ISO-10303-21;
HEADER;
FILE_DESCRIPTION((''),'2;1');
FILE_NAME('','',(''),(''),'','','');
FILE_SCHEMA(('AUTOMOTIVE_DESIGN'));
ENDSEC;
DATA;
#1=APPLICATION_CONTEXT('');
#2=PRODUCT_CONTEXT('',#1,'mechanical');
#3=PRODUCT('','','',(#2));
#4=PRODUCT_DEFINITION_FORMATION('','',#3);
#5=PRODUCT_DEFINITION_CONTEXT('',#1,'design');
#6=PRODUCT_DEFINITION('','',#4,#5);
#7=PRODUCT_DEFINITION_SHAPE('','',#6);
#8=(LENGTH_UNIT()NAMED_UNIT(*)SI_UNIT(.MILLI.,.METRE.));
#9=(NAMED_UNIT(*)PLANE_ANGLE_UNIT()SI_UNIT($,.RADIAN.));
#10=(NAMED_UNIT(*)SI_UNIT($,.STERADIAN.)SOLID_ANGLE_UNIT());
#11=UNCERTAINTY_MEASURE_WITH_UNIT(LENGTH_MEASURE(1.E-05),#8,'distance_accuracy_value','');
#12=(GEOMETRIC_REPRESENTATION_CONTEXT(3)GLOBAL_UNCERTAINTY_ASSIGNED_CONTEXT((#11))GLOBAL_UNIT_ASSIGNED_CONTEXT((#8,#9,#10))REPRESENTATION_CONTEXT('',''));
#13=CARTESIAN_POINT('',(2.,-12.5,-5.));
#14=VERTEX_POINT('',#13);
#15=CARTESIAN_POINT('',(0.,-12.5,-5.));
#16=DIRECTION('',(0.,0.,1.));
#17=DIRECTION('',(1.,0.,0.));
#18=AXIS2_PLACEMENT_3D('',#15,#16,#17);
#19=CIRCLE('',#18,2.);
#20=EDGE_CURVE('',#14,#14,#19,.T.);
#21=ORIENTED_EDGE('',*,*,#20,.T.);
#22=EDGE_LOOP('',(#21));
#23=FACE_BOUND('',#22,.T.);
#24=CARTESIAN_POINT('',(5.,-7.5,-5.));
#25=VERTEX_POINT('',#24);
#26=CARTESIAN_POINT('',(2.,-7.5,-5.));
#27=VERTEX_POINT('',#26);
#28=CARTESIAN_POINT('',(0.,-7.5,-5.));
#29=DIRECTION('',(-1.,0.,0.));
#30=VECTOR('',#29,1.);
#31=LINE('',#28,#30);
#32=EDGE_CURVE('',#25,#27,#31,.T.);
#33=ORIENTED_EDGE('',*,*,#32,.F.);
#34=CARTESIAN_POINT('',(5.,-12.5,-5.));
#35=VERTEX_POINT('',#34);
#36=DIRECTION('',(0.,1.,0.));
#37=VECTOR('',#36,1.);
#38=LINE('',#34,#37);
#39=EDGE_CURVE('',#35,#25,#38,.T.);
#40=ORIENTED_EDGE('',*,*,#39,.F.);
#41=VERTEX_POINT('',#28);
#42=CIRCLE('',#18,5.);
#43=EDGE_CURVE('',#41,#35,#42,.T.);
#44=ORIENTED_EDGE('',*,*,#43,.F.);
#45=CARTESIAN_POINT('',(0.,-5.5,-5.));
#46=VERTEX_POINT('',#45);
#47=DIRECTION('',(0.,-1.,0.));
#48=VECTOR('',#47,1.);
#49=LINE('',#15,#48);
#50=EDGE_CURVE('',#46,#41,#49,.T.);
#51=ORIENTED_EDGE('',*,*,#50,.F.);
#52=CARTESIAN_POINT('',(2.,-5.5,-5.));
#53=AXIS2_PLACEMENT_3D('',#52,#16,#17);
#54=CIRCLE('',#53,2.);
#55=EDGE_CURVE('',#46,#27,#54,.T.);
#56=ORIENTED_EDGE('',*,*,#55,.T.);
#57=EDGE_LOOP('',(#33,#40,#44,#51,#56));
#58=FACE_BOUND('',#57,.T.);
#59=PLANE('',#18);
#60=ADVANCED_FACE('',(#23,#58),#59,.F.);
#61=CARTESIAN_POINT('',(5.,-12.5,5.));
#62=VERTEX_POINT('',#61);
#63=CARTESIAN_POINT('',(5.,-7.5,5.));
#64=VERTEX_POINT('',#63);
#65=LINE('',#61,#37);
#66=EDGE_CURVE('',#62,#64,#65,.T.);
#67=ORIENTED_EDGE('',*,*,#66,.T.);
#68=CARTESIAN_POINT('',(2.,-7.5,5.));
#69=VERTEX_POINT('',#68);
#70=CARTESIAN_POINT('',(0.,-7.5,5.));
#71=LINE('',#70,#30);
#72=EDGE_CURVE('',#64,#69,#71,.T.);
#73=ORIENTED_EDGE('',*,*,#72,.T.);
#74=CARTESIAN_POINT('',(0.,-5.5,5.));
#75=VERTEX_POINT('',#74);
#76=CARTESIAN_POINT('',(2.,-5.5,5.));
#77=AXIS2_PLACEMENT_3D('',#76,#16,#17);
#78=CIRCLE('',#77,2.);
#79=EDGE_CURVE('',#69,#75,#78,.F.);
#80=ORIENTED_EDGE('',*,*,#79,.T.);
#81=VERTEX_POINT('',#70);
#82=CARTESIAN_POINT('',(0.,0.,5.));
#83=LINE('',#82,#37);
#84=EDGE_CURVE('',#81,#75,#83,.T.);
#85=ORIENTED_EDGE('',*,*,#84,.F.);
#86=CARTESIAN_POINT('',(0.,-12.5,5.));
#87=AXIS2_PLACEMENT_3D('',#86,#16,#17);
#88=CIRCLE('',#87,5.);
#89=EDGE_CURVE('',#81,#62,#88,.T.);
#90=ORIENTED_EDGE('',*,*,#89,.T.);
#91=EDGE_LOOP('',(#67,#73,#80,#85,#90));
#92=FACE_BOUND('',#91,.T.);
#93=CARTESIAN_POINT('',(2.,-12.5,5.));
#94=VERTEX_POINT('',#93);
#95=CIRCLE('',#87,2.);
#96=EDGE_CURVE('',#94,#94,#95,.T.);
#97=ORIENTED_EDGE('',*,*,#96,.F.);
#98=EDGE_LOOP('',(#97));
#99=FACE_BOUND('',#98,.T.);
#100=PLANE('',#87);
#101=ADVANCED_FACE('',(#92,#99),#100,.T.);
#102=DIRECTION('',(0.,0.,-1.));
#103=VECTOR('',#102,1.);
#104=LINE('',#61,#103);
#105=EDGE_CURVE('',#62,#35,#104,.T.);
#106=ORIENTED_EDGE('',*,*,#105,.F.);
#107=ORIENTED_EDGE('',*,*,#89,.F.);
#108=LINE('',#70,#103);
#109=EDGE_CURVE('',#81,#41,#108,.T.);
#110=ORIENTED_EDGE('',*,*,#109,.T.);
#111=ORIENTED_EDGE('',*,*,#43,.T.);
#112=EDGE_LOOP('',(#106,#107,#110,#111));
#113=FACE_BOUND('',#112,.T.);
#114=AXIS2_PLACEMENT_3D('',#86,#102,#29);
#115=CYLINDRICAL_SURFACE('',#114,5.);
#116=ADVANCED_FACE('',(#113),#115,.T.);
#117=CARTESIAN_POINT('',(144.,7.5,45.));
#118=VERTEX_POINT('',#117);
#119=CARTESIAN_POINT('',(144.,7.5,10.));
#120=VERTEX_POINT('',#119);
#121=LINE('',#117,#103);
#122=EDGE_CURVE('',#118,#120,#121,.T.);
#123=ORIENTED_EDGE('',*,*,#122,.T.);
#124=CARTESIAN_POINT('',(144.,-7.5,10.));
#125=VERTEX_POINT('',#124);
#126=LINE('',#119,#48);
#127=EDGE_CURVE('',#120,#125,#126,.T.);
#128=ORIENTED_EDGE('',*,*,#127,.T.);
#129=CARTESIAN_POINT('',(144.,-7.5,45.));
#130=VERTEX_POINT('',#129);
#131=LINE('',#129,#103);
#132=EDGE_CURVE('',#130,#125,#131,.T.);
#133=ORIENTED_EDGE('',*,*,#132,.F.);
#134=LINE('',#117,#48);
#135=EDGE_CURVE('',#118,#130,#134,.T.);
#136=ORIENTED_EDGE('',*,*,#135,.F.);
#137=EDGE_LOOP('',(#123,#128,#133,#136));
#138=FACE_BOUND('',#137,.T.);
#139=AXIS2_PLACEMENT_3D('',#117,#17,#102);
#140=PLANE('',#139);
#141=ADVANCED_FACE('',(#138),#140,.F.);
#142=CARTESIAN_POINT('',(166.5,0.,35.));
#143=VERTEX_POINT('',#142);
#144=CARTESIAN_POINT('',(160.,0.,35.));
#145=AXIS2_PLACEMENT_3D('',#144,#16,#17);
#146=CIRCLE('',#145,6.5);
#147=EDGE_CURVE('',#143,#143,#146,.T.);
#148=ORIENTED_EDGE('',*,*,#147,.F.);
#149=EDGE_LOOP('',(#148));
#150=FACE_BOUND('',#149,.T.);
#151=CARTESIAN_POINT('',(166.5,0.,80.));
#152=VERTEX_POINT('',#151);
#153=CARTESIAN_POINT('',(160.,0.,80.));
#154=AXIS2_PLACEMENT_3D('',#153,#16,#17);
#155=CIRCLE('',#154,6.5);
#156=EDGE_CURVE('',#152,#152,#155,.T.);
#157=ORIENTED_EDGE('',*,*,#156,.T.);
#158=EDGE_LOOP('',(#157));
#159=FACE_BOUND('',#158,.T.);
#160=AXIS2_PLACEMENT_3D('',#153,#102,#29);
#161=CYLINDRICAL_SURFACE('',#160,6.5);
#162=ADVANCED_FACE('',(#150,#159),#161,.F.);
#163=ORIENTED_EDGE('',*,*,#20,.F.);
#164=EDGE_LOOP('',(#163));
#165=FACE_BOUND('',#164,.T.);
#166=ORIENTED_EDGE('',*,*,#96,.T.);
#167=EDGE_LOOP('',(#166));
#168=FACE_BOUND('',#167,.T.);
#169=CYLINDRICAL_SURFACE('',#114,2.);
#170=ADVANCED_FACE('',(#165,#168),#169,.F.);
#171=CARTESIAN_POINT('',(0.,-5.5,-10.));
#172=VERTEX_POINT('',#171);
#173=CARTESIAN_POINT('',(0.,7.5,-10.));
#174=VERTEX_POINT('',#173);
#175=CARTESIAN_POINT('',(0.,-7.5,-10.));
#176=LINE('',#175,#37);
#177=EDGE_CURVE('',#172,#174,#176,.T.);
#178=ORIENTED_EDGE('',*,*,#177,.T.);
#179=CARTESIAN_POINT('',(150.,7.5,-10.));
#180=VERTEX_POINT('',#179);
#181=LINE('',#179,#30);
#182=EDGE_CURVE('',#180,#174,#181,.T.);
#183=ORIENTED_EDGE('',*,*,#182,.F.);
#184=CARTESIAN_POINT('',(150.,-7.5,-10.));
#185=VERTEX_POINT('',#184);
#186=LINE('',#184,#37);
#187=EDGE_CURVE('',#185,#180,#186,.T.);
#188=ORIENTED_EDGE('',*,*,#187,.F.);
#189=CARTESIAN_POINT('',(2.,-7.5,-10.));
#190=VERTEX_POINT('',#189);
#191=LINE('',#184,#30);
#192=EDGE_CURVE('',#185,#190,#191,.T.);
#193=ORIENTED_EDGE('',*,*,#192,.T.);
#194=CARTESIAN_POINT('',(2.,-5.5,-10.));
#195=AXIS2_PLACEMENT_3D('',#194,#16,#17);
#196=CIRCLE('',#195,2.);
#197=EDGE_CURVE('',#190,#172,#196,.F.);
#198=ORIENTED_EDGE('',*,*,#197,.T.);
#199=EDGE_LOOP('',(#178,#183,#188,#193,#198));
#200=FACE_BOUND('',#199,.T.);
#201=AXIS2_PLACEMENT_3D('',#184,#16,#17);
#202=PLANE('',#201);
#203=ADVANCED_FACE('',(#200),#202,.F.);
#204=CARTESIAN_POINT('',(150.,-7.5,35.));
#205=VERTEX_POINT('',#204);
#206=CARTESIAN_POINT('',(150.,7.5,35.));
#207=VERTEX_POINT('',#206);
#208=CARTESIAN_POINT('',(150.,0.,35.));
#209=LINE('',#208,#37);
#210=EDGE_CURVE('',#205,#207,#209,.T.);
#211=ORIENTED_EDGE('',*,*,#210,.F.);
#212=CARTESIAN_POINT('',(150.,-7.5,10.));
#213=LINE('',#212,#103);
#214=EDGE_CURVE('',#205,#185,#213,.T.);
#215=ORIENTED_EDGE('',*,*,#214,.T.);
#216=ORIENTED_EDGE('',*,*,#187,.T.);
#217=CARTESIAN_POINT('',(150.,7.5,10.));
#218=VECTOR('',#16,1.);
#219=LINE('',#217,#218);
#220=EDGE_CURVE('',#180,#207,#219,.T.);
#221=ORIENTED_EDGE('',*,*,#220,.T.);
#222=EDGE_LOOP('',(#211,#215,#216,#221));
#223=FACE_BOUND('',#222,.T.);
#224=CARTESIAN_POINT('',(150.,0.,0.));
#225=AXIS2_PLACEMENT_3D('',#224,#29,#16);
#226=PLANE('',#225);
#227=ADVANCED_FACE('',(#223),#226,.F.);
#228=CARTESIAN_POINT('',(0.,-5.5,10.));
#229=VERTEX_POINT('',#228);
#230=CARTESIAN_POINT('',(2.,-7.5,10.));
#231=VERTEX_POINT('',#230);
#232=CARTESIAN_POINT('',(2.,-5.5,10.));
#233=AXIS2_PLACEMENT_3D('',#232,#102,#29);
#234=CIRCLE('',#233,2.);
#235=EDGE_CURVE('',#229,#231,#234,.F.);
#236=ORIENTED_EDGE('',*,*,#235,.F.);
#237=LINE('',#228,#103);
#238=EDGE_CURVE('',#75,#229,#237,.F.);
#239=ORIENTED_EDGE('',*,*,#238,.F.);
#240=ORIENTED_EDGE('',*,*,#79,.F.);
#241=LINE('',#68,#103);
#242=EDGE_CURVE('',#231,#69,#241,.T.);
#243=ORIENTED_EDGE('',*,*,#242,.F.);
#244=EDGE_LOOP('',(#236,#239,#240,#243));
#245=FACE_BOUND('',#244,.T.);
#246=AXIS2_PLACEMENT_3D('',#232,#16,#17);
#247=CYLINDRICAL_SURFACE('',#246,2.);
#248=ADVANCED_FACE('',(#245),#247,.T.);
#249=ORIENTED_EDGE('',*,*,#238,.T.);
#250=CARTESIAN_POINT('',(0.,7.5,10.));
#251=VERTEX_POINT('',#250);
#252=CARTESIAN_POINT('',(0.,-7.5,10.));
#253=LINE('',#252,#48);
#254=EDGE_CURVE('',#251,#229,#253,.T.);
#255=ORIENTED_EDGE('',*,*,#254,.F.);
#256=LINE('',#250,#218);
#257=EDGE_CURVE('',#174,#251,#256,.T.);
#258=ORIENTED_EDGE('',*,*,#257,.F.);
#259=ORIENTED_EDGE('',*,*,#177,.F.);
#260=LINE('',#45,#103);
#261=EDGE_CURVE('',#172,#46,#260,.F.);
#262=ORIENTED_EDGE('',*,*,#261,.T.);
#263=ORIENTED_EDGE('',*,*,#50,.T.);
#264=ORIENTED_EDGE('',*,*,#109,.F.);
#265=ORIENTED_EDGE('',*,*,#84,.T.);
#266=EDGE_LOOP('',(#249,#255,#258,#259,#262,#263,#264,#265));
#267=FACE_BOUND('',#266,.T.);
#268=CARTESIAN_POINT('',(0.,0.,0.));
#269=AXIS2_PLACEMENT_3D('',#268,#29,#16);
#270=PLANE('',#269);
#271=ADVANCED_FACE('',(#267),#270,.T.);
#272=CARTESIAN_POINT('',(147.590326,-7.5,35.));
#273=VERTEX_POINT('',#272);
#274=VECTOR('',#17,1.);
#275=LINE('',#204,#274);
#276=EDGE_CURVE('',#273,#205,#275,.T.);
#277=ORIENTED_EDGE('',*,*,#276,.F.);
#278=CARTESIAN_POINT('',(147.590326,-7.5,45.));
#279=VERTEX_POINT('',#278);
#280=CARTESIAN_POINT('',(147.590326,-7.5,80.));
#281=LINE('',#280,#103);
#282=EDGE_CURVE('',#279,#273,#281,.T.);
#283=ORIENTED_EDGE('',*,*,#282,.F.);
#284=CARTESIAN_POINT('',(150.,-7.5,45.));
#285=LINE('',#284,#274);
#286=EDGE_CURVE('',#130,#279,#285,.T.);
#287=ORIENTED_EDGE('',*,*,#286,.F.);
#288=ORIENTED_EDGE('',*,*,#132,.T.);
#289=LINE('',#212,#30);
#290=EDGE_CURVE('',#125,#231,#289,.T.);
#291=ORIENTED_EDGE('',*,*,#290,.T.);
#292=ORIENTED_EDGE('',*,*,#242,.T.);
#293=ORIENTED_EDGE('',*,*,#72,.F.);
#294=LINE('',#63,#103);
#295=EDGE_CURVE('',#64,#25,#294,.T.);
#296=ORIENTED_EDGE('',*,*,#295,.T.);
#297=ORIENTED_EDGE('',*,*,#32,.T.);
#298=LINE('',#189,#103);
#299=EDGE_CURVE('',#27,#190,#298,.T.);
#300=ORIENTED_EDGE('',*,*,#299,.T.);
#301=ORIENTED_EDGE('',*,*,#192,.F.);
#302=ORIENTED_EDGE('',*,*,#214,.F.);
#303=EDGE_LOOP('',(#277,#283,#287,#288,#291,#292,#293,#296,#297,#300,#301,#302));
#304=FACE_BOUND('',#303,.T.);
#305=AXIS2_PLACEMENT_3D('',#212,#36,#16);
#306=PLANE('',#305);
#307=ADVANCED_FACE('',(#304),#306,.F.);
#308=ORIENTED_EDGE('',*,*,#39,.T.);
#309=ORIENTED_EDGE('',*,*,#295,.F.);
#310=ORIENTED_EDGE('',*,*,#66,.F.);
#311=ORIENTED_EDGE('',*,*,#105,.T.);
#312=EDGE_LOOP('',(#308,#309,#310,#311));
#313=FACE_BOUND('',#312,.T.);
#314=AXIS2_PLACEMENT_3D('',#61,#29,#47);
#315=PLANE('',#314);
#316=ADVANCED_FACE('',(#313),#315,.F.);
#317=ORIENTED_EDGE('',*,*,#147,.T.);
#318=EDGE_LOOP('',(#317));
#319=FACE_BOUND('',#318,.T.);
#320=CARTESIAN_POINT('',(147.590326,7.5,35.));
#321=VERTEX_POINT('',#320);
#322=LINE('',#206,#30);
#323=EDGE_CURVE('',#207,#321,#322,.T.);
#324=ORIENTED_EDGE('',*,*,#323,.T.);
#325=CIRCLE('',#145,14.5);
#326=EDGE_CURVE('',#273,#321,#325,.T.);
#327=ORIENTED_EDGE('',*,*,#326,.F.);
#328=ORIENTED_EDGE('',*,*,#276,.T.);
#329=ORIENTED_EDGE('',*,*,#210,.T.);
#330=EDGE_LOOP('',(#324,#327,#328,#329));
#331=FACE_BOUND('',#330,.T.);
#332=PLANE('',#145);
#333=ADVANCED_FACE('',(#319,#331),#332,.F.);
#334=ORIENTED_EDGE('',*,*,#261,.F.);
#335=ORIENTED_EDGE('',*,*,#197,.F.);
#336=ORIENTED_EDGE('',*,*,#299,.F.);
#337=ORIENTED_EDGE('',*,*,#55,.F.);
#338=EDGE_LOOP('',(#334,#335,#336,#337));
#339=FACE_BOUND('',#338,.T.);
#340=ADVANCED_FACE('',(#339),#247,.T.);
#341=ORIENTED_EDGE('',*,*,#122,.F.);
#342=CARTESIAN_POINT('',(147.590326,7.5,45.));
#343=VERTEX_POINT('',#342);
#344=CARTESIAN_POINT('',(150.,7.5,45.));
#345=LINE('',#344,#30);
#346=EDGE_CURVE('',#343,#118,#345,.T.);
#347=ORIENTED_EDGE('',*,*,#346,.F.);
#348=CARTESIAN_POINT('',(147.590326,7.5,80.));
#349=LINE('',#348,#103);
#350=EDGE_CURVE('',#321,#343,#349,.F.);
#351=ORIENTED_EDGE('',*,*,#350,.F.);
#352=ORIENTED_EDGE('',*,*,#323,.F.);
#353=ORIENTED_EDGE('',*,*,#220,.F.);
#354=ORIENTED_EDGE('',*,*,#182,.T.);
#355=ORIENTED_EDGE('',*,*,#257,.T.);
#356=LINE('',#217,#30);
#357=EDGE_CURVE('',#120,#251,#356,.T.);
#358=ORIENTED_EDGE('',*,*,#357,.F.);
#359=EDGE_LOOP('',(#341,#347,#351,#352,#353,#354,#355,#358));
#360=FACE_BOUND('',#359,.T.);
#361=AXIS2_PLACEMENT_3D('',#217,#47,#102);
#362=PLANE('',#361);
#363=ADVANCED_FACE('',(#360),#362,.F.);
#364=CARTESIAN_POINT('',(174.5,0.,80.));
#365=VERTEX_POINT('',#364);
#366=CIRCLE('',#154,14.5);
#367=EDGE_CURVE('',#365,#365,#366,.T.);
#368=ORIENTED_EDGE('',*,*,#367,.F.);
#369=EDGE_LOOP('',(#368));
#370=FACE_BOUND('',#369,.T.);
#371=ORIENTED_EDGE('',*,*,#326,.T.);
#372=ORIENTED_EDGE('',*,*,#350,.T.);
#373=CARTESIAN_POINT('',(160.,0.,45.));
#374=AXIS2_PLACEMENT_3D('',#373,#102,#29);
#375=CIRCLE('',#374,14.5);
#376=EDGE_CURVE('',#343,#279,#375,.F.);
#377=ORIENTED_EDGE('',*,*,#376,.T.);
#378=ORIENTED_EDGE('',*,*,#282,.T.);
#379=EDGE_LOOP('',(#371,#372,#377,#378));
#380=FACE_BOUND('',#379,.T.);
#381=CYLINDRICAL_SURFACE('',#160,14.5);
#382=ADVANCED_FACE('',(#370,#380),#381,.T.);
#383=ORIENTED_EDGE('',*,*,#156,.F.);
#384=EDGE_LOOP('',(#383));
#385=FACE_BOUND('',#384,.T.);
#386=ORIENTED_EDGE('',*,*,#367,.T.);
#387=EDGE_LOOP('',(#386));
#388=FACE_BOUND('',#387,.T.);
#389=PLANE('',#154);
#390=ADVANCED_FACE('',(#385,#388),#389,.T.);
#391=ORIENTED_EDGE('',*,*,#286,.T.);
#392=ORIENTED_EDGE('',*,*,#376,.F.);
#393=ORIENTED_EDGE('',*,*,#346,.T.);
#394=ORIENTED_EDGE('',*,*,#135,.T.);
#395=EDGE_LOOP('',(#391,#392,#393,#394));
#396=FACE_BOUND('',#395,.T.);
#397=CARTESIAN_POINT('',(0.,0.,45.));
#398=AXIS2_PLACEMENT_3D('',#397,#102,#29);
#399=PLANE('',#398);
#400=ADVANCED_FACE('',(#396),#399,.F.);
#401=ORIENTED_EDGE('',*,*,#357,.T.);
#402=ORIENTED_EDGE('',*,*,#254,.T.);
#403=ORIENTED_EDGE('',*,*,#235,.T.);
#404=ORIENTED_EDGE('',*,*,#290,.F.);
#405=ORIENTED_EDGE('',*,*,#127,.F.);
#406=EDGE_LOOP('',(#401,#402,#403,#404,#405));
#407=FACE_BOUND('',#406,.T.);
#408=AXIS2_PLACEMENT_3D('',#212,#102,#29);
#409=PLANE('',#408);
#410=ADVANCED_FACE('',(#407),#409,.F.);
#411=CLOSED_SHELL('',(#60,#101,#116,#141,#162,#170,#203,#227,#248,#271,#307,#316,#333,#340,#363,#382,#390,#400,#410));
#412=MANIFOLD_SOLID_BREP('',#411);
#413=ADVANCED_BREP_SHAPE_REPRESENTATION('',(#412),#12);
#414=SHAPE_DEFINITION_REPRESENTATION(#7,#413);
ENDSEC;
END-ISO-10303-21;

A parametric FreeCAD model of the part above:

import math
import FreeCAD as App
import Part
import Sketcher
Q = App.Units.Quantity


def edges_at(feature, points):
    """Names of the edges that pass closest to the given points."""
    edges = feature.Shape.Edges
    near = lambda p: min(range(len(edges)), key=lambda i: edges[i].distToShape(Part.Vertex(*p))[0])
    return sorted({f"Edge{near(p) + 1}" for p in points})


def add_polygon(sketch, points):
    """Adds a closed chain of lines whose ends are joined by coincident constraints."""
    first, n = sketch.GeometryCount, len(points)
    for a, b in zip(points, points[1:] + points[:1]):
        sketch.addGeometry(Part.LineSegment(App.Vector(*a, 0), App.Vector(*b, 0)), False)
    for i in range(n):
        sketch.addConstraint(Sketcher.Constraint("Coincident", first + i, 2, first + (i + 1) % n, 1))

doc = App.newDocument("Part")
params = doc.addObject("Spreadsheet::Sheet", "Params")
for row, (alias, value) in enumerate([
    ("sketch1_width", "15 mm"),
    ("sketch1_height", "20 mm"),
    ("pad1_length", "150 mm"),
    ("sketch2_width", "6 mm"),
    ("sketch2_height", "15 mm"),
    ("pad2_length", "35 mm"),
    ("sketch3_diameter", "29 mm"),
    ("sketch3_diameter2", "13 mm"),
    ("pad3_length", "35 mm"),
    ("pad3_length2", "10 mm"),
    ("sketch4_diameter", "4 mm"),
    ("sketch4_radius", "5 mm"),
    ("pad4_length", "10 mm"),
    ("fillet_radius", "2 mm"),
], start=1):
    params.set(f"A{row}", alias)
    params.set(f"B{row}", "=" + value)
    params.setAlias(f"B{row}", alias)

body = doc.addObject("PartDesign::Body", "Body")

# Sketch on YZ plane
sketch1 = body.newObject("Sketcher::SketchObject", "Sketch")
sketch1.AttachmentSupport = (doc.getObject("YZ_Plane"), [""])
sketch1.MapMode = "FlatFace"
add_polygon(sketch1, [(7.5, 10), (-7.5, 10), (-7.5, -10), (7.5, -10)])  # lines 0-3
sketch1.addConstraint(Sketcher.Constraint("Horizontal", 0))
sketch1.addConstraint(Sketcher.Constraint("Vertical", 1))
sketch1.addConstraint(Sketcher.Constraint("Horizontal", 2))
sketch1.addConstraint(Sketcher.Constraint("Vertical", 3))
sketch1.addConstraint(Sketcher.Constraint("Symmetric", 0, 2, 2, 2, -1, 1))
sketch1.addConstraint(Sketcher.Constraint("DistanceX", 0, 2, 0, 1, Q("15 mm")))
sketch1.addConstraint(Sketcher.Constraint("DistanceY", 1, 2, 1, 1, Q("20 mm")))
sketch1.setExpression("Constraints[9]", "Params.sketch1_width")
sketch1.setExpression("Constraints[10]", "Params.sketch1_height")
pad1 = body.newObject("PartDesign::Pad", "Pad")
pad1.Profile = sketch1
pad1.setExpression("Length", "Params.pad1_length")

# Sketch on XY plane
sketch2 = body.newObject("Sketcher::SketchObject", "Sketch001")
sketch2.AttachmentSupport = (doc.getObject("XY_Plane"), [""])
sketch2.MapMode = "FlatFace"
sketch2.AttachmentOffset = App.Placement(App.Vector(0, 0, 10), App.Rotation())
add_polygon(sketch2, [(144, 7.5), (144, -7.5), (150, -7.5), (150, 7.5)])  # lines 0-3
sketch2.addConstraint(Sketcher.Constraint("Vertical", 0))
sketch2.addConstraint(Sketcher.Constraint("Horizontal", 1))
sketch2.addConstraint(Sketcher.Constraint("Vertical", 2))
sketch2.addConstraint(Sketcher.Constraint("Horizontal", 3))
sketch2.addConstraint(Sketcher.Constraint("DistanceX", 1, 1, 1, 2, Q("6 mm")))
sketch2.addConstraint(Sketcher.Constraint("DistanceY", 0, 2, 0, 1, Q("15 mm")))
sketch2.addConstraint(Sketcher.Constraint("DistanceX", -1, 1, 0, 2, Q("144 mm")))
sketch2.addConstraint(Sketcher.Constraint("DistanceY", 0, 2, -1, 1, Q("7.5 mm")))
sketch2.setExpression("Constraints[8]", "Params.sketch2_width")
sketch2.setExpression("Constraints[9]", "Params.sketch2_height")
pad2 = body.newObject("PartDesign::Pad", "Pad001")
pad2.Profile = sketch2
pad2.setExpression("Length", "Params.pad2_length")

# Sketch on XY plane
sketch3 = body.newObject("Sketcher::SketchObject", "Sketch002")
sketch3.AttachmentSupport = (doc.getObject("XY_Plane"), [""])
sketch3.MapMode = "FlatFace"
sketch3.AttachmentOffset = App.Placement(App.Vector(0, 0, 45), App.Rotation())
sketch3.addGeometry(Part.Circle(App.Vector(160, 0, 0), App.Vector(0, 0, 1), 14.5), False)
sketch3.addGeometry(Part.Circle(App.Vector(160, 0, 0), App.Vector(0, 0, 1), 6.5), False)
sketch3.addConstraint(Sketcher.Constraint("Coincident", 1, 3, 0, 3))
sketch3.addConstraint(Sketcher.Constraint("PointOnObject", 0, 3, -1))
sketch3.addConstraint(Sketcher.Constraint("Diameter", 0, Q("29 mm")))
sketch3.addConstraint(Sketcher.Constraint("Diameter", 1, Q("13 mm")))
sketch3.addConstraint(Sketcher.Constraint("DistanceX", -1, 1, 0, 3, Q("160 mm")))
sketch3.setExpression("Constraints[2]", "Params.sketch3_diameter")
sketch3.setExpression("Constraints[3]", "Params.sketch3_diameter2")
pad3 = body.newObject("PartDesign::Pad", "Pad002")
pad3.Profile = sketch3
pad3.Type = "TwoLengths"
pad3.setExpression("Length", "Params.pad3_length")
pad3.setExpression("Length2", "Params.pad3_length2")

# Sketch on XY plane
sketch4 = body.newObject("Sketcher::SketchObject", "Sketch003")
sketch4.AttachmentSupport = (doc.getObject("XY_Plane"), [""])
sketch4.MapMode = "FlatFace"
sketch4.addGeometry(Part.LineSegment(App.Vector(5, -12.5, 0), App.Vector(5, -7.5, 0)), False)
sketch4.addGeometry(Part.LineSegment(App.Vector(5, -7.5, 0), App.Vector(0, -7.5, 0)), False)
sketch4.addGeometry(Part.ArcOfCircle(Part.Circle(App.Vector(0, -12.5, 0), App.Vector(0, 0, 1), 5), math.radians(90), math.radians(360)), False)
sketch4.addGeometry(Part.Circle(App.Vector(0, -12.5, 0), App.Vector(0, 0, 1), 2), False)
sketch4.addConstraint(Sketcher.Constraint("Coincident", 0, 2, 1, 1))
sketch4.addConstraint(Sketcher.Constraint("Tangent", 1, 2, 2, 1))
sketch4.addConstraint(Sketcher.Constraint("Tangent", 2, 2, 0, 1))
sketch4.addConstraint(Sketcher.Constraint("Vertical", 0))
sketch4.addConstraint(Sketcher.Constraint("Horizontal", 1))
sketch4.addConstraint(Sketcher.Constraint("Coincident", 3, 3, 2, 3))
sketch4.addConstraint(Sketcher.Constraint("PointOnObject", 2, 3, -2))
sketch4.addConstraint(Sketcher.Constraint("Diameter", 3, Q("4 mm")))
sketch4.addConstraint(Sketcher.Constraint("Radius", 2, Q("5 mm")))
sketch4.addConstraint(Sketcher.Constraint("DistanceY", 2, 3, -1, 1, Q("12.5 mm")))
sketch4.setExpression("Constraints[7]", "Params.sketch4_diameter")
sketch4.setExpression("Constraints[8]", "Params.sketch4_radius")
pad4 = body.newObject("PartDesign::Pad", "Pad003")
pad4.Profile = sketch4
pad4.setExpression("Length", "Params.pad4_length")
pad4.Midplane = True
doc.recompute()

fillet = body.newObject("PartDesign::Fillet", "Fillet")
fillet.Base = (pad4, edges_at(pad4, [(0, -7.5, -7.5), (0, -7.5, 7.5)]))
fillet.setExpression("Radius", "Params.fillet_radius")

doc.recompute()
